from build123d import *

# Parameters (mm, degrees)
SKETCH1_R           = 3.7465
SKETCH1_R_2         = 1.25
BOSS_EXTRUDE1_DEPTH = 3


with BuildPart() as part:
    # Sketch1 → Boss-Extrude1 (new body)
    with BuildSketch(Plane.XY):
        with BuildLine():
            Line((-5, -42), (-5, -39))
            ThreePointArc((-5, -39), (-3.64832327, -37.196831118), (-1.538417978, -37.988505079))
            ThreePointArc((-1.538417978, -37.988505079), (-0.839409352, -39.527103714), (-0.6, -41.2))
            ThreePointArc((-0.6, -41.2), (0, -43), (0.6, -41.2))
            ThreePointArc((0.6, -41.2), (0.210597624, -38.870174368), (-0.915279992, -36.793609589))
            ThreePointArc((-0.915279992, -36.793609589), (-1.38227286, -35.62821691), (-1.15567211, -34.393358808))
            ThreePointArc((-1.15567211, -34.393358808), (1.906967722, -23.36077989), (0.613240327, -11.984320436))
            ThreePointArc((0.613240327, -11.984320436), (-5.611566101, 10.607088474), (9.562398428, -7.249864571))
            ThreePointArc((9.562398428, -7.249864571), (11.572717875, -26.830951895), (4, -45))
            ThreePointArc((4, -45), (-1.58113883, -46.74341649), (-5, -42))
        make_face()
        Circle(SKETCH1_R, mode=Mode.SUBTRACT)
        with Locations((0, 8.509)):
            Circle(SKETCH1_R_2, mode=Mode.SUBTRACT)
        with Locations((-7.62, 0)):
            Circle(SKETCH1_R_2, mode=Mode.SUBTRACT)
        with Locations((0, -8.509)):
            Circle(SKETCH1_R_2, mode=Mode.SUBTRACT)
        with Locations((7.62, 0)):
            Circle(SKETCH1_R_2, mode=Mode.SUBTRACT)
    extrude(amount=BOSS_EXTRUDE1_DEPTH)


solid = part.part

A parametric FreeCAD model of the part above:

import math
import FreeCAD as App
import Part
import Sketcher

doc = App.newDocument("Part")
body = doc.addObject("PartDesign::Body", "Body")

# Sketch on XY plane
sketch1 = doc.addObject("Sketcher::SketchObject", "Sketch")
body.addObject(sketch1)
sketch1.AttachmentSupport = (doc.XY_Plane, [""])
sketch1.MapMode = "FlatFace"
sketch1.addGeometry([
    Part.LineSegment(App.Vector(-5, -39, 0), App.Vector(-5, -42, 0)),  # 0
    Part.ArcOfCircle(Part.Circle(App.Vector(0, -42, 0), App.Vector(0, 0, 1), 5), math.radians(180), math.radians(323.130102)),  # 1
    Part.ArcOfCircle(Part.Circle(App.Vector(-28, -21, 0), App.Vector(0, 0, 1), 40), math.radians(-36.869898), math.radians(20.105716)),  # 2
    Part.ArcOfCircle(Part.Circle(App.Vector(0, 0, 0), App.Vector(0, 0, 1), 12), math.radians(-37.168088), math.radians(272.929283)),  # 3
    Part.ArcOfCircle(Part.Circle(App.Vector(-28, -21, 0), App.Vector(0, 0, 1), 30), math.radians(-26.515845), math.radians(17.488998)),  # 4
    Part.ArcOfCircle(Part.Circle(App.Vector(0.867703, -35.402875, 0), App.Vector(0, 0, 1), 2.261232), math.radians(153.484155), math.radians(217.954381)),  # 5
    Part.ArcOfCircle(Part.Circle(App.Vector(-6.564468, -41.2, 0), App.Vector(0, 0, 1), 7.164468), math.radians(0), math.radians(37.954381)),  # 6
    Part.ArcOfCircle(Part.Circle(App.Vector(0, -42, 0), App.Vector(0, 0, 1), 1), math.radians(126.869898), math.radians(413.130102)),  # 7
    Part.ArcOfCircle(Part.Circle(App.Vector(-6.564468, -41.2, 0), App.Vector(0, 0, 1), 5.964468), math.radians(0), math.radians(32.577355)),  # 8
    Part.ArcOfCircle(Part.Circle(App.Vector(-3.121427, -39, 0), App.Vector(0, 0, 1), 1.878573), math.radians(32.577355), math.radians(180)),  # 9
    Part.Circle(App.Vector(0, -8.509, 0), App.Vector(0, 0, 1), 1.25),  # 10
    Part.Circle(App.Vector(7.62, 0, 0), App.Vector(0, 0, 1), 1.25),  # 11
    Part.Circle(App.Vector(0, 0, 0), App.Vector(0, 0, 1), 3.7465),  # 12
    Part.Circle(App.Vector(-7.62, 0, 0), App.Vector(0, 0, 1), 1.25),  # 13
    Part.Circle(App.Vector(0, 8.509, 0), App.Vector(0, 0, 1), 1.25),  # 14
], False)
sketch1.addConstraint([
    Sketcher.Constraint("Tangent", 0, 2, 1, 1),
    Sketcher.Constraint("Tangent", 1, 2, 2, 1),
    Sketcher.Constraint("Coincident", 2, 2, 3, 1),
    Sketcher.Constraint("Coincident", 3, 2, 4, 2),
    Sketcher.Constraint("Tangent", 4, 1, 5, 1),
    Sketcher.Constraint("Tangent", 5, 2, 6, 2),
    Sketcher.Constraint("Coincident", 6, 1, 7, 2),
    Sketcher.Constraint("Coincident", 7, 1, 8, 1),
    Sketcher.Constraint("Tangent", 8, 2, 9, 1),
    Sketcher.Constraint("Tangent", 9, 2, 0, 1),
    Sketcher.Constraint("Vertical", 0),
    Sketcher.Constraint("Coincident", 3, 3, -1, 1),
    Sketcher.Constraint("Coincident", 12, 3, -1, 1),
    Sketcher.Constraint("Coincident", 4, 3, 2, 3),
    Sketcher.Constraint("Coincident", 7, 3, 1, 3),
    Sketcher.Constraint("Coincident", 8, 3, 6, 3),
    Sketcher.Constraint("Equal", 10, 11),
    Sketcher.Constraint("Equal", 11, 13),
    Sketcher.Constraint("Equal", 13, 14),
    Sketcher.Constraint("Symmetric", 11, 3, 13, 3, -1, 1),
    Sketcher.Constraint("Symmetric", 10, 3, 14, 3, -1, 1),
    Sketcher.Constraint("Symmetric", 6, 1, 7, 1, -2),
    Sketcher.Constraint("PointOnObject", 10, 3, -2),
    Sketcher.Constraint("PointOnObject", 11, 3, -1),
    Sketcher.Constraint("Horizontal", 8, 3, 6, 1),
    Sketcher.Constraint("Radius", 1, 5.0),
    Sketcher.Constraint("Radius", 2, 40.0),
    Sketcher.Constraint("Radius", 3, 12.0),
    Sketcher.Constraint("Radius", 4, 30.0),
    Sketcher.Constraint("Radius", 7, 1.0),
    Sketcher.Constraint("Diameter", 10, 2.5),
    Sketcher.Constraint("DistanceY", 0, 2, 0, 1, 3.0),
    Sketcher.Constraint("Diameter", 12, 7.493),
    Sketcher.Constraint("DistanceY", 1, 3, -1, 1, 42.0),
    Sketcher.Constraint("DistanceX", 2, 3, -1, 1, 28.0),
    Sketcher.Constraint("DistanceY", 6, 3, -1, 1, 41.2),
    Sketcher.Constraint("DistanceX", -1, 1, 11, 3, 7.62),
    Sketcher.Constraint("DistanceY", 10, 3, -1, 1, 8.509),
    Sketcher.Constraint("Radius", 5, 2.261232),
    Sketcher.Constraint("Radius", 6, 7.164468),
])
pad1 = doc.addObject("PartDesign::Pad", "Pad")
body.addObject(pad1)
pad1.Profile = sketch1
pad1.Length = 3

doc.recompute()
